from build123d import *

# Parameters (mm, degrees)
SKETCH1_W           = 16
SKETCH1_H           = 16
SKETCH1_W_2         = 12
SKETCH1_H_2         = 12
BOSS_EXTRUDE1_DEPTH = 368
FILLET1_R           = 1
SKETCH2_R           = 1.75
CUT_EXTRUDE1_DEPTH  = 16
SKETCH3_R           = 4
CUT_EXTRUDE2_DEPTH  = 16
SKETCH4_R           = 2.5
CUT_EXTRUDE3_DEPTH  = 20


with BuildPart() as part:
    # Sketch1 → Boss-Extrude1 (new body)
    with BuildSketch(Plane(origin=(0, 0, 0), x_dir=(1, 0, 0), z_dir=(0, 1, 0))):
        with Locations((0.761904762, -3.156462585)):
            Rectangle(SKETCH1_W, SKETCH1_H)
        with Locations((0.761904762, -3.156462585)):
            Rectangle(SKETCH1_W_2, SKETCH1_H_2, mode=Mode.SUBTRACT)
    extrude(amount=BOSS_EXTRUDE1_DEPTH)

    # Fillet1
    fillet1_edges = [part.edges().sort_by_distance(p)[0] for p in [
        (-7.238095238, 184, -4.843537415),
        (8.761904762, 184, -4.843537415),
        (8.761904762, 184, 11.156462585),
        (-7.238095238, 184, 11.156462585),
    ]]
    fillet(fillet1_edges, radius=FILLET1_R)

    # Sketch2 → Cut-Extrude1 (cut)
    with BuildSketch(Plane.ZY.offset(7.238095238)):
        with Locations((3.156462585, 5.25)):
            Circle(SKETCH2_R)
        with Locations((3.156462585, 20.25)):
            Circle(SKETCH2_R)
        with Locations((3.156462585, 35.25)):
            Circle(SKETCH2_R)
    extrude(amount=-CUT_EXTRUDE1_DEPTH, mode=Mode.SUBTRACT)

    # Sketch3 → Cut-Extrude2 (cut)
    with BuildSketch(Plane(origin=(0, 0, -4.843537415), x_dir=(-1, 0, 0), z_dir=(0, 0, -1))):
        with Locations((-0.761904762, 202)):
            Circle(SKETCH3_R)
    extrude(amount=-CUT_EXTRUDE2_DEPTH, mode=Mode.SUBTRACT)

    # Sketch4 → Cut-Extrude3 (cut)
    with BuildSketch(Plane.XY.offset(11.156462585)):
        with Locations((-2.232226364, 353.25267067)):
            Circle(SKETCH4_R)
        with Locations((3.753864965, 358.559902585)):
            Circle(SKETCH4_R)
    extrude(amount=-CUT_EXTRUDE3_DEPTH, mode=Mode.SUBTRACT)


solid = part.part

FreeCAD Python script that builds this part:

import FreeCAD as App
import Part
import Sketcher

V = App.Vector
Q = App.Units.Quantity


def edges_at(feature, points):
    """Names of the edges that pass closest to the given points."""
    edges = feature.Shape.Edges
    near = lambda p: min(range(len(edges)), key=lambda i: edges[i].distToShape(Part.Vertex(*p))[0])
    return sorted({f"Edge{near(p) + 1}" for p in points})


def add_polygon(sketch, points):
    """Adds a closed chain of lines whose ends are joined by coincident constraints."""
    first, n = sketch.GeometryCount, len(points)
    for a, b in zip(points, points[1:] + points[:1]):
        sketch.addGeometry(Part.LineSegment(App.Vector(*a, 0), App.Vector(*b, 0)), False)
    for i in range(n):
        sketch.addConstraint(Sketcher.Constraint("Coincident", first + i, 2, first + (i + 1) % n, 1))

doc = App.newDocument("Part")
params = doc.addObject("Spreadsheet::Sheet", "Params")
for row, (alias, value) in enumerate([
    ("sketch1_width", "16 mm"),
    ("sketch1_width2", "12 mm"),
    ("pad1_length", "368 mm"),
    ("fillet_radius", "1 mm"),
    ("sketch2_diameter", "3.5 mm"),
    ("pocket1_length", "16 mm"),
    ("sketch3_diameter", "8 mm"),
    ("pocket2_length", "16 mm"),
    ("sketch4_diameter", "5 mm"),
    ("pocket3_length", "20 mm"),
], start=1):
    params.set(f"A{row}", alias)
    params.set(f"B{row}", "=" + value)
    params.setAlias(f"B{row}", alias)

body = doc.addObject("PartDesign::Body", "Body")

# Sketch on XZ plane
sketch1 = doc.addObject("Sketcher::SketchObject", "Sketch")
body.addObject(sketch1)
sketch1.AttachmentSupport = (doc.XZ_Plane, [""])
sketch1.MapMode = "FlatFace"
add_polygon(sketch1, [(-7.238095, -4.843537), (-7.238095, 11.156463), (8.761905, 11.156463), (8.761905, -4.843537)])  # lines 0-3
add_polygon(sketch1, [(6.761905, 9.156463), (-5.238095, 9.156463), (-5.238095, -2.843537), (6.761905, -2.843537)])  # lines 4-7
sketch1.addConstraint([
    Sketcher.Constraint("Vertical", 0),
    Sketcher.Constraint("Horizontal", 1),
    Sketcher.Constraint("Vertical", 2),
    Sketcher.Constraint("Horizontal", 3),
    Sketcher.Constraint("Horizontal", 4),
    Sketcher.Constraint("Vertical", 5),
    Sketcher.Constraint("Horizontal", 6),
    Sketcher.Constraint("Vertical", 7),
    Sketcher.Constraint("Equal", 3, 0),
    Sketcher.Constraint("Equal", 6, 5),
    Sketcher.Constraint("DistanceX", 1, 1, 1, 2, Q("16 mm")),
    Sketcher.Constraint("DistanceX", 4, 2, 4, 1, Q("12 mm")),
    Sketcher.Constraint("DistanceX", 0, 2, 4, 2, Q("2 mm")),
    Sketcher.Constraint("DistanceY", 4, 2, 0, 2, Q("2 mm")),
    Sketcher.Constraint("DistanceX", 0, 2, -1, 1, Q("7.238095 mm")),
    Sketcher.Constraint("DistanceY", -1, 1, 0, 2, Q("11.156463 mm")),
])
sketch1.setExpression("Constraints[18]", "Params.sketch1_width")
sketch1.setExpression("Constraints[19]", "Params.sketch1_width2")
pad1 = doc.addObject("PartDesign::Pad", "Pad")
body.addObject(pad1)
pad1.Profile = sketch1
pad1.setExpression("Length", "Params.pad1_length")
pad1.Reversed = True
doc.recompute()

fillet = doc.addObject("PartDesign::Fillet", "Fillet")
body.addObject(fillet)
fillet.Base = (pad1, edges_at(pad1, [
    (-7.238, 184, -4.844),
    (8.762, 184, -4.844),
    (8.762, 184, 11.156),
    (-7.238, 184, 11.156),
]))
fillet.setExpression("Radius", "Params.fillet_radius")

# Sketch on YZ plane
sketch2 = doc.addObject("Sketcher::SketchObject", "Sketch001")
body.addObject(sketch2)
sketch2.AttachmentSupport = (doc.YZ_Plane, [""])
sketch2.MapMode = "FlatFace"
sketch2.AttachmentOffset = App.Placement(V(0, 0, -7.238095), App.Rotation())
sketch2.addGeometry([
    Part.Circle(V(5.25, 3.156463, 0), V(0, 0, 1), 1.75),
    Part.Circle(V(20.25, 3.156463, 0), V(0, 0, 1), 1.75),
    Part.Circle(V(35.25, 3.156463, 0), V(0, 0, 1), 1.75),
], False)
sketch2.addConstraint([
    Sketcher.Constraint("Equal", 0, 1),
    Sketcher.Constraint("Equal", 1, 2),
    Sketcher.Constraint("Horizontal", 0, 3, 1, 3),
    Sketcher.Constraint("Horizontal", 1, 3, 2, 3),
    Sketcher.Constraint("Diameter", 0, Q("3.5 mm")),
    Sketcher.Constraint("DistanceX", 0, 3, 1, 3, Q("15 mm")),
    Sketcher.Constraint("DistanceX", 1, 3, 2, 3, Q("15 mm")),
    Sketcher.Constraint("DistanceX", -1, 1, 0, 3, Q("5.25 mm")),
    Sketcher.Constraint("DistanceY", -1, 1, 0, 3, Q("3.156463 mm")),
])
sketch2.setExpression("Constraints[4]", "Params.sketch2_diameter")
pocket1 = doc.addObject("PartDesign::Pocket", "Pocket")
body.addObject(pocket1)
pocket1.Profile = sketch2
pocket1.setExpression("Length", "Params.pocket1_length")
pocket1.Reversed = True

# Sketch on XY plane
sketch3 = doc.addObject("Sketcher::SketchObject", "Sketch002")
body.addObject(sketch3)
sketch3.AttachmentSupport = (doc.XY_Plane, [""])
sketch3.MapMode = "FlatFace"
sketch3.AttachmentOffset = App.Placement(V(0, 0, -4.843537), App.Rotation())
sketch3.addGeometry(Part.Circle(V(0.761905, 202, 0), V(0, 0, 1), 4), False)
sketch3.addConstraint([
    Sketcher.Constraint("Diameter", 0, Q("8 mm")),
    Sketcher.Constraint("DistanceY", -1, 1, 0, 3, Q("202 mm")),
    Sketcher.Constraint("DistanceX", -1, 1, 0, 3, Q("0.761905 mm")),
])
sketch3.setExpression("Constraints[0]", "Params.sketch3_diameter")
pocket2 = doc.addObject("PartDesign::Pocket", "Pocket001")
body.addObject(pocket2)
pocket2.Profile = sketch3
pocket2.setExpression("Length", "Params.pocket2_length")
pocket2.Reversed = True

# Sketch on XY plane
sketch4 = doc.addObject("Sketcher::SketchObject", "Sketch003")
body.addObject(sketch4)
sketch4.AttachmentSupport = (doc.XY_Plane, [""])
sketch4.MapMode = "FlatFace"
sketch4.AttachmentOffset = App.Placement(V(0, 0, 11.156463), App.Rotation())
sketch4.addGeometry([
    Part.Circle(V(-2.232226, 353.252671, 0), V(0, 0, 1), 2.5),
    Part.Circle(V(3.753865, 358.559903, 0), V(0, 0, 1), 2.5),
], False)
sketch4.addConstraint([
    Sketcher.Constraint("Equal", 0, 1),
    Sketcher.Constraint("Diameter", 0, Q("5 mm")),
    Sketcher.Constraint("DistanceY", -1, 1, 0, 3, Q("353.252671 mm")),
    Sketcher.Constraint("DistanceX", 0, 3, 1, 3, Q("5.986091 mm")),
    Sketcher.Constraint("DistanceY", 0, 3, 1, 3, Q("5.307232 mm")),
    Sketcher.Constraint("DistanceX", 0, 3, -1, 1, Q("2.232226 mm")),
])
sketch4.setExpression("Constraints[1]", "Params.sketch4_diameter")
pocket3 = doc.addObject("PartDesign::Pocket", "Pocket002")
body.addObject(pocket3)
pocket3.Profile = sketch4
pocket3.setExpression("Length", "Params.pocket3_length")

doc.recompute()
